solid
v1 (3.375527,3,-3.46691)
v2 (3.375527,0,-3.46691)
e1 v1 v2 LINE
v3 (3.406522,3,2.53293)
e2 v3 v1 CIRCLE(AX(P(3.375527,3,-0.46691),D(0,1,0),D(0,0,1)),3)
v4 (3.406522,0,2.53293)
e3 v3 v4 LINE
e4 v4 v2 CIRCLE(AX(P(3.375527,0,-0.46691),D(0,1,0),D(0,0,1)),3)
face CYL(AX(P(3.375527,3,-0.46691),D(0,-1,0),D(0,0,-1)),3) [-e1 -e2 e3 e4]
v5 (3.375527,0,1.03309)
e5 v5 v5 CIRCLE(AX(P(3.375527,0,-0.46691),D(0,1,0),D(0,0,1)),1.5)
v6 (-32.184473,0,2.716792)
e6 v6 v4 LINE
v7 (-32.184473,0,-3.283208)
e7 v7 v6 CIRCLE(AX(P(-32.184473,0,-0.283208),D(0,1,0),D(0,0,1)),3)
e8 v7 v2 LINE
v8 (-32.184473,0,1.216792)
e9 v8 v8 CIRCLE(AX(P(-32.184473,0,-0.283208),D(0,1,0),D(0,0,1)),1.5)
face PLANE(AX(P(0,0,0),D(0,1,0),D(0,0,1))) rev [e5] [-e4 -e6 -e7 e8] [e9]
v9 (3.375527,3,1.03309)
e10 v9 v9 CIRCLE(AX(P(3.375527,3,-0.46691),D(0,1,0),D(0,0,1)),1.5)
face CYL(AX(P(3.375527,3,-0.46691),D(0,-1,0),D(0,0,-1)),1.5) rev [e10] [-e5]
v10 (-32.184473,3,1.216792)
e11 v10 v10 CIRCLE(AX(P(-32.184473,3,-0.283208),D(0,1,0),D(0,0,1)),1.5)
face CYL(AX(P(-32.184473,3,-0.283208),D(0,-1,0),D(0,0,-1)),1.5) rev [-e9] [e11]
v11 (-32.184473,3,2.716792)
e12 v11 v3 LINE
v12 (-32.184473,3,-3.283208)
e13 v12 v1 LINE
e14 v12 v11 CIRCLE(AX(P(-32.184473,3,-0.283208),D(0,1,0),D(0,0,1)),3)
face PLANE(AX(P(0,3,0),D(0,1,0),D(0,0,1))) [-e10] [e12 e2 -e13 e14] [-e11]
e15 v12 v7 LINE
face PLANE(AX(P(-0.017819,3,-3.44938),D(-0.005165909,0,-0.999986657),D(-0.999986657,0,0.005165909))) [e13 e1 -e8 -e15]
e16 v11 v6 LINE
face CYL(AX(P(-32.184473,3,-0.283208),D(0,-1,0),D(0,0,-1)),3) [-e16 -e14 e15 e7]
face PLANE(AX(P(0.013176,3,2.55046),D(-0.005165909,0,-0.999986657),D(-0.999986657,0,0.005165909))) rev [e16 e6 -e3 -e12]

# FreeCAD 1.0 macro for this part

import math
import FreeCAD as App
import Part
import Sketcher
Q = App.Units.Quantity

doc = App.newDocument("Part")
params = doc.addObject("Spreadsheet::Sheet", "Params")
for row, (alias, value) in enumerate([
    ("sketch1_diameter", "3 mm"),
    ("sketch1_radius", "3 mm"),
    ("pad1_length", "3 mm"),
], start=1):
    params.set(f"A{row}", alias)
    params.set(f"B{row}", "=" + value)
    params.setAlias(f"B{row}", alias)

body = doc.addObject("PartDesign::Body", "Body")

sketch1 = body.newObject("Sketcher::SketchObject", "Sketch")
sketch1.AttachmentSupport = (doc.getObject("XZ_Plane"), [""])
sketch1.MapMode = "FlatFace"
sketch1.addGeometry(Part.LineSegment(App.Vector(3.344532, -3.46675, 0), App.Vector(-32.184473, -3.283208, 0)), False)
sketch1.addGeometry(Part.ArcOfCircle(Part.Circle(App.Vector(-32.184473, -0.283208, 0), App.Vector(0, 0, 1), 3), math.radians(90), math.radians(270)), False)
sketch1.addGeometry(Part.LineSegment(App.Vector(-32.184473, 2.716792, 0), App.Vector(-32.153478, 2.716632, 0)), False)
sketch1.addGeometry(Part.LineSegment(App.Vector(-32.153478, 2.716632, 0), App.Vector(3.375527, 2.53309, 0)), False)
sketch1.addGeometry(Part.LineSegment(App.Vector(3.375527, 2.53309, 0), App.Vector(3.406522, 2.53293, 0)), False)
sketch1.addGeometry(Part.ArcOfCircle(Part.Circle(App.Vector(3.375527, -0.46691, 0), App.Vector(0, 0, 1), 3), math.radians(-90), math.radians(89.408028)), False)
sketch1.addGeometry(Part.LineSegment(App.Vector(3.375527, -3.46691, 0), App.Vector(3.344532, -3.46675, 0)), False)
sketch1.addGeometry(Part.Circle(App.Vector(-32.184473, -0.283208, 0), App.Vector(0, 0, 1), 1.5), False)
sketch1.addGeometry(Part.Circle(App.Vector(3.375527, -0.46691, 0), App.Vector(0, 0, 1), 1.5), False)
sketch1.addConstraint(Sketcher.Constraint("Coincident", 0, 2, 1, 2))
sketch1.addConstraint(Sketcher.Constraint("Coincident", 1, 1, 2, 1))
sketch1.addConstraint(Sketcher.Constraint("Coincident", 2, 2, 3, 1))
sketch1.addConstraint(Sketcher.Constraint("Coincident", 3, 2, 4, 1))
sketch1.addConstraint(Sketcher.Constraint("Coincident", 4, 2, 5, 2))
sketch1.addConstraint(Sketcher.Constraint("Coincident", 5, 1, 6, 1))
sketch1.addConstraint(Sketcher.Constraint("Coincident", 6, 2, 0, 1))
sketch1.addConstraint(Sketcher.Constraint("Coincident", 7, 3, 1, 3))
sketch1.addConstraint(Sketcher.Constraint("Coincident", 8, 3, 5, 3))
sketch1.addConstraint(Sketcher.Constraint("Equal", 1, 5))
sketch1.addConstraint(Sketcher.Constraint("Equal", 7, 8))
sketch1.addConstraint(Sketcher.Constraint("Parallel", 0, 2))
sketch1.addConstraint(Sketcher.Constraint("Parallel", 0, 3))
sketch1.addConstraint(Sketcher.Constraint("Parallel", 3, 4))
sketch1.addConstraint(Sketcher.Constraint("Parallel", 4, 6))
sketch1.addConstraint(Sketcher.Constraint("Vertical", 7, 3, 0, 2))
sketch1.addConstraint(Sketcher.Constraint("Vertical", 0, 2, 1, 1))
sketch1.addConstraint(Sketcher.Constraint("Vertical", 8, 3, 3, 2))
sketch1.addConstraint(Sketcher.Constraint("Vertical", 3, 2, 5, 1))
sketch1.addConstraint(Sketcher.Constraint("Equal", 0, 3))
sketch1.addConstraint(Sketcher.Constraint("Equal", 2, 4))
sketch1.addConstraint(Sketcher.Constraint("Diameter", 7, Q("3 mm")))
sketch1.addConstraint(Sketcher.Constraint("Radius", 1, Q("3 mm")))
sketch1.addConstraint(Sketcher.Constraint("DistanceX", 1, 3, 5, 3, Q("35.56 mm")))
sketch1.addConstraint(Sketcher.Constraint("Distance", 0, Q("35.529479 mm")))
sketch1.addConstraint(Sketcher.Constraint("DistanceY", 5, 3, -1, 1, Q("0.46691 mm")))
sketch1.addConstraint(Sketcher.Constraint("DistanceX", 1, 3, -1, 1, Q("32.184473 mm")))
sketch1.setExpression("Constraints[21]", "Params.sketch1_diameter")
sketch1.setExpression("Constraints[22]", "Params.sketch1_radius")
pad1 = body.newObject("PartDesign::Pad", "Pad")
pad1.Profile = sketch1
pad1.setExpression("Length", "Params.pad1_length")
pad1.Reversed = True

doc.recompute()
